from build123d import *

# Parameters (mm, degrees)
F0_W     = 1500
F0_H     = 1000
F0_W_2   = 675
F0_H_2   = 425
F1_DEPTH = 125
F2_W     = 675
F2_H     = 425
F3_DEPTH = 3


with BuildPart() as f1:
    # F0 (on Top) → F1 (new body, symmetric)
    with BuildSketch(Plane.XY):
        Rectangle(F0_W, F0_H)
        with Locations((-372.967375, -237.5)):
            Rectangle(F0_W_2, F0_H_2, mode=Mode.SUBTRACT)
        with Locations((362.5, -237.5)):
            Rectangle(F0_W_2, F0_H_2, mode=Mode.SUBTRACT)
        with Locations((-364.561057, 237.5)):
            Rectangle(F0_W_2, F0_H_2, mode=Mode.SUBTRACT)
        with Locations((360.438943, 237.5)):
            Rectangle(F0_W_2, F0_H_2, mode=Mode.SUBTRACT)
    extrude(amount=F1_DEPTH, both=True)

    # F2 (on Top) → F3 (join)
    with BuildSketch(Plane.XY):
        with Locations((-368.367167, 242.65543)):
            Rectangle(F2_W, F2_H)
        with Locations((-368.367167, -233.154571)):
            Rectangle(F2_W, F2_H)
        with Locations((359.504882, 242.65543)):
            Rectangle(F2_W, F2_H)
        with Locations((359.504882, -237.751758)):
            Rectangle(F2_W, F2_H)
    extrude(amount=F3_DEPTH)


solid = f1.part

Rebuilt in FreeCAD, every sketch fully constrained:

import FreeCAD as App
import Part
import Sketcher

V = App.Vector

doc = App.newDocument("Part")
body = doc.addObject("PartDesign::Body", "Body")

sketch1 = body.newObject("Sketcher::SketchObject", "Sketch")
sketch1.AttachmentSupport = (doc.getObject("XY_Plane"), [""])
sketch1.MapMode = "FlatFace"
sketch1.addGeometry(Part.LineSegment(V(-750, 500, 0), V(-750, -500, 0)), False)
sketch1.addGeometry(Part.LineSegment(V(-750, -500, 0), V(750, -500, 0)), False)
sketch1.addGeometry(Part.LineSegment(V(750, -500, 0), V(750, 500, 0)), False)
sketch1.addGeometry(Part.LineSegment(V(750, 500, 0), V(-750, 500, 0)), False)
sketch1.addGeometry(Part.LineSegment(V(-35, -450, 0), V(-710, -450, 0)), False)
sketch1.addGeometry(Part.LineSegment(V(-710, -450, 0), V(-710, -25, 0)), False)
sketch1.addGeometry(Part.LineSegment(V(-710, -25, 0), V(-35, -25, 0)), False)
sketch1.addGeometry(Part.LineSegment(V(-35, -25, 0), V(-35, -450, 0)), False)
sketch1.addGeometry(Part.LineSegment(V(700, -450, 0), V(25, -450, 0)), False)
sketch1.addGeometry(Part.LineSegment(V(25, -450, 0), V(25, -25, 0)), False)
sketch1.addGeometry(Part.LineSegment(V(25, -25, 0), V(700, -25, 0)), False)
sketch1.addGeometry(Part.LineSegment(V(700, -25, 0), V(700, -450, 0)), False)
sketch1.addGeometry(Part.LineSegment(V(-27, 25, 0), V(-702, 25, 0)), False)
sketch1.addGeometry(Part.LineSegment(V(-702, 25, 0), V(-702, 450, 0)), False)
sketch1.addGeometry(Part.LineSegment(V(-702, 450, 0), V(-27, 450, 0)), False)
sketch1.addGeometry(Part.LineSegment(V(-27, 450, 0), V(-27, 25, 0)), False)
sketch1.addGeometry(Part.LineSegment(V(698, 25, 0), V(23, 25, 0)), False)
sketch1.addGeometry(Part.LineSegment(V(23, 25, 0), V(23, 450, 0)), False)
sketch1.addGeometry(Part.LineSegment(V(23, 450, 0), V(698, 450, 0)), False)
sketch1.addGeometry(Part.LineSegment(V(698, 450, 0), V(698, 25, 0)), False)
sketch1.addConstraint(Sketcher.Constraint("Coincident", 0, 2, 1, 1))
sketch1.addConstraint(Sketcher.Constraint("Coincident", 1, 2, 2, 1))
sketch1.addConstraint(Sketcher.Constraint("Coincident", 2, 2, 3, 1))
sketch1.addConstraint(Sketcher.Constraint("Coincident", 3, 2, 0, 1))
sketch1.addConstraint(Sketcher.Constraint("Coincident", 4, 2, 5, 1))
sketch1.addConstraint(Sketcher.Constraint("Coincident", 5, 2, 6, 1))
sketch1.addConstraint(Sketcher.Constraint("Coincident", 6, 2, 7, 1))
sketch1.addConstraint(Sketcher.Constraint("Coincident", 7, 2, 4, 1))
sketch1.addConstraint(Sketcher.Constraint("Coincident", 8, 2, 9, 1))
sketch1.addConstraint(Sketcher.Constraint("Coincident", 9, 2, 10, 1))
sketch1.addConstraint(Sketcher.Constraint("Coincident", 10, 2, 11, 1))
sketch1.addConstraint(Sketcher.Constraint("Coincident", 11, 2, 8, 1))
sketch1.addConstraint(Sketcher.Constraint("Coincident", 12, 2, 13, 1))
sketch1.addConstraint(Sketcher.Constraint("Coincident", 13, 2, 14, 1))
sketch1.addConstraint(Sketcher.Constraint("Coincident", 14, 2, 15, 1))
sketch1.addConstraint(Sketcher.Constraint("Coincident", 15, 2, 12, 1))
sketch1.addConstraint(Sketcher.Constraint("Coincident", 16, 2, 17, 1))
sketch1.addConstraint(Sketcher.Constraint("Coincident", 17, 2, 18, 1))
sketch1.addConstraint(Sketcher.Constraint("Coincident", 18, 2, 19, 1))
sketch1.addConstraint(Sketcher.Constraint("Coincident", 19, 2, 16, 1))
sketch1.addConstraint(Sketcher.Constraint("Vertical", 0))
sketch1.addConstraint(Sketcher.Constraint("Horizontal", 1))
sketch1.addConstraint(Sketcher.Constraint("Vertical", 2))
sketch1.addConstraint(Sketcher.Constraint("Horizontal", 3))
sketch1.addConstraint(Sketcher.Constraint("Horizontal", 4))
sketch1.addConstraint(Sketcher.Constraint("Vertical", 5))
sketch1.addConstraint(Sketcher.Constraint("Horizontal", 6))
sketch1.addConstraint(Sketcher.Constraint("Vertical", 7))
sketch1.addConstraint(Sketcher.Constraint("Horizontal", 8))
sketch1.addConstraint(Sketcher.Constraint("Vertical", 9))
sketch1.addConstraint(Sketcher.Constraint("Horizontal", 10))
sketch1.addConstraint(Sketcher.Constraint("Vertical", 11))
sketch1.addConstraint(Sketcher.Constraint("Horizontal", 12))
sketch1.addConstraint(Sketcher.Constraint("Vertical", 13))
sketch1.addConstraint(Sketcher.Constraint("Horizontal", 14))
sketch1.addConstraint(Sketcher.Constraint("Vertical", 15))
sketch1.addConstraint(Sketcher.Constraint("Horizontal", 16))
sketch1.addConstraint(Sketcher.Constraint("Vertical", 17))
sketch1.addConstraint(Sketcher.Constraint("Horizontal", 18))
sketch1.addConstraint(Sketcher.Constraint("Vertical", 19))
sketch1.addConstraint(Sketcher.Constraint("Symmetric", 0, 2, 2, 2, -1, 1))
sketch1.addConstraint(Sketcher.Constraint("Horizontal", 7, 2, 8, 2))
sketch1.addConstraint(Sketcher.Constraint("Horizontal", 6, 2, 9, 2))
sketch1.addConstraint(Sketcher.Constraint("Horizontal", 15, 2, 16, 2))
sketch1.addConstraint(Sketcher.Constraint("Horizontal", 14, 2, 17, 2))
sketch1.addConstraint(Sketcher.Constraint("Equal", 6, 8))
sketch1.addConstraint(Sketcher.Constraint("Equal", 10, 12))
sketch1.addConstraint(Sketcher.Constraint("Equal", 14, 16))
sketch1.addConstraint(Sketcher.Constraint("Equal", 11, 13))
sketch1.addConstraint(Sketcher.Constraint("DistanceX", 1, 1, 1, 2, 1500.0))
sketch1.addConstraint(Sketcher.Constraint("DistanceX", 4, 2, 4, 1, 675.0))
sketch1.addConstraint(Sketcher.Constraint("DistanceY", 0, 2, 0, 1, 1000.0))
sketch1.addConstraint(Sketcher.Constraint("DistanceY", 5, 1, 5, 2, 425.0))
sketch1.addConstraint(Sketcher.Constraint("DistanceY", 4, 2, -1, 1, 450.0))
sketch1.addConstraint(Sketcher.Constraint("DistanceX", -1, 1, 8, 2, 25.0))
sketch1.addConstraint(Sketcher.Constraint("DistanceY", -1, 1, 12, 2, 25.0))
sketch1.addConstraint(Sketcher.Constraint("DistanceX", 15, 2, 16, 2, 50.0))
sketch1.addConstraint(Sketcher.Constraint("DistanceX", 4, 2, -1, 1, 710.467375))
sketch1.addConstraint(Sketcher.Constraint("DistanceX", 12, 2, -1, 1, 702.061057))
pad1 = body.newObject("PartDesign::Pad", "Pad")
pad1.Profile = sketch1
pad1.Length = 250
pad1.Midplane = True

sketch2 = body.newObject("Sketcher::SketchObject", "Sketch001")
sketch2.AttachmentSupport = (doc.getObject("XY_Plane"), [""])
sketch2.MapMode = "FlatFace"
sketch2.addGeometry(Part.LineSegment(V(-706, 455, 0), V(-706, 30, 0)), False)
sketch2.addGeometry(Part.LineSegment(V(-706, 30, 0), V(-31, 30, 0)), False)
sketch2.addGeometry(Part.LineSegment(V(-31, 30, 0), V(-31, 455, 0)), False)
sketch2.addGeometry(Part.LineSegment(V(-31, 455, 0), V(-706, 455, 0)), False)
sketch2.addGeometry(Part.LineSegment(V(-706, -21, 0), V(-706, -446, 0)), False)
sketch2.addGeometry(Part.LineSegment(V(-706, -446, 0), V(-31, -446, 0)), False)
sketch2.addGeometry(Part.LineSegment(V(-31, -446, 0), V(-31, -21, 0)), False)
sketch2.addGeometry(Part.LineSegment(V(-31, -21, 0), V(-706, -21, 0)), False)
sketch2.addGeometry(Part.LineSegment(V(22, 455, 0), V(22, 30, 0)), False)
sketch2.addGeometry(Part.LineSegment(V(22, 30, 0), V(697, 30, 0)), False)
sketch2.addGeometry(Part.LineSegment(V(697, 30, 0), V(697, 455, 0)), False)
sketch2.addGeometry(Part.LineSegment(V(697, 455, 0), V(22, 455, 0)), False)
sketch2.addGeometry(Part.LineSegment(V(22, -25, 0), V(22, -450, 0)), False)
sketch2.addGeometry(Part.LineSegment(V(22, -450, 0), V(697, -450, 0)), False)
sketch2.addGeometry(Part.LineSegment(V(697, -450, 0), V(697, -25, 0)), False)
sketch2.addGeometry(Part.LineSegment(V(697, -25, 0), V(22, -25, 0)), False)
sketch2.addConstraint(Sketcher.Constraint("Coincident", 0, 2, 1, 1))
sketch2.addConstraint(Sketcher.Constraint("Coincident", 1, 2, 2, 1))
sketch2.addConstraint(Sketcher.Constraint("Coincident", 2, 2, 3, 1))
sketch2.addConstraint(Sketcher.Constraint("Coincident", 3, 2, 0, 1))
sketch2.addConstraint(Sketcher.Constraint("Coincident", 4, 2, 5, 1))
sketch2.addConstraint(Sketcher.Constraint("Coincident", 5, 2, 6, 1))
sketch2.addConstraint(Sketcher.Constraint("Coincident", 6, 2, 7, 1))
sketch2.addConstraint(Sketcher.Constraint("Coincident", 7, 2, 4, 1))
sketch2.addConstraint(Sketcher.Constraint("Coincident", 8, 2, 9, 1))
sketch2.addConstraint(Sketcher.Constraint("Coincident", 9, 2, 10, 1))
sketch2.addConstraint(Sketcher.Constraint("Coincident", 10, 2, 11, 1))
sketch2.addConstraint(Sketcher.Constraint("Coincident", 11, 2, 8, 1))
sketch2.addConstraint(Sketcher.Constraint("Coincident", 12, 2, 13, 1))
sketch2.addConstraint(Sketcher.Constraint("Coincident", 13, 2, 14, 1))
sketch2.addConstraint(Sketcher.Constraint("Coincident", 14, 2, 15, 1))
sketch2.addConstraint(Sketcher.Constraint("Coincident", 15, 2, 12, 1))
sketch2.addConstraint(Sketcher.Constraint("Vertical", 0))
sketch2.addConstraint(Sketcher.Constraint("Horizontal", 1))
sketch2.addConstraint(Sketcher.Constraint("Vertical", 2))
sketch2.addConstraint(Sketcher.Constraint("Horizontal", 3))
sketch2.addConstraint(Sketcher.Constraint("Vertical", 4))
sketch2.addConstraint(Sketcher.Constraint("Horizontal", 5))
sketch2.addConstraint(Sketcher.Constraint("Vertical", 6))
sketch2.addConstraint(Sketcher.Constraint("Horizontal", 7))
sketch2.addConstraint(Sketcher.Constraint("Vertical", 8))
sketch2.addConstraint(Sketcher.Constraint("Horizontal", 9))
sketch2.addConstraint(Sketcher.Constraint("Vertical", 10))
sketch2.addConstraint(Sketcher.Constraint("Horizontal", 11))
sketch2.addConstraint(Sketcher.Constraint("Vertical", 12))
sketch2.addConstraint(Sketcher.Constraint("Horizontal", 13))
sketch2.addConstraint(Sketcher.Constraint("Vertical", 14))
sketch2.addConstraint(Sketcher.Constraint("Horizontal", 15))
sketch2.addConstraint(Sketcher.Constraint("Horizontal", 1, 2, 8, 2))
sketch2.addConstraint(Sketcher.Constraint("Horizontal", 3, 2, 10, 2))
sketch2.addConstraint(Sketcher.Constraint("Vertical", 3, 2, 4, 2))
sketch2.addConstraint(Sketcher.Constraint("Vertical", 2, 2, 5, 2))
sketch2.addConstraint(Sketcher.Constraint("Vertical", 11, 2, 12, 2))
sketch2.addConstraint(Sketcher.Constraint("Vertical", 10, 2, 13, 2))
sketch2.addConstraint(Sketcher.Constraint("Equal", 7, 9))
sketch2.addConstraint(Sketcher.Constraint("Equal", 2, 4))
sketch2.addConstraint(Sketcher.Constraint("Equal", 10, 12))
sketch2.addConstraint(Sketcher.Constraint("DistanceX", 1, 1, 1, 2, 675.0))
sketch2.addConstraint(Sketcher.Constraint("DistanceY", 0, 2, 0, 1, 425.0))
sketch2.addConstraint(Sketcher.Constraint("DistanceY", 4, 2, 0, 2, 475.810001))
sketch2.addConstraint(Sketcher.Constraint("DistanceY", -1, 1, 0, 2, 30.15543))
sketch2.addConstraint(Sketcher.Constraint("DistanceX", -1, 1, 8, 2, 22.004882))
sketch2.addConstraint(Sketcher.Constraint("DistanceY", 12, 2, -1, 1, 450.251758))
sketch2.addConstraint(Sketcher.Constraint("DistanceX", 1, 2, 8, 2, 52.872049))
pad2 = body.newObject("PartDesign::Pad", "Pad001")
pad2.Profile = sketch2
pad2.Length = 3

doc.recompute()
